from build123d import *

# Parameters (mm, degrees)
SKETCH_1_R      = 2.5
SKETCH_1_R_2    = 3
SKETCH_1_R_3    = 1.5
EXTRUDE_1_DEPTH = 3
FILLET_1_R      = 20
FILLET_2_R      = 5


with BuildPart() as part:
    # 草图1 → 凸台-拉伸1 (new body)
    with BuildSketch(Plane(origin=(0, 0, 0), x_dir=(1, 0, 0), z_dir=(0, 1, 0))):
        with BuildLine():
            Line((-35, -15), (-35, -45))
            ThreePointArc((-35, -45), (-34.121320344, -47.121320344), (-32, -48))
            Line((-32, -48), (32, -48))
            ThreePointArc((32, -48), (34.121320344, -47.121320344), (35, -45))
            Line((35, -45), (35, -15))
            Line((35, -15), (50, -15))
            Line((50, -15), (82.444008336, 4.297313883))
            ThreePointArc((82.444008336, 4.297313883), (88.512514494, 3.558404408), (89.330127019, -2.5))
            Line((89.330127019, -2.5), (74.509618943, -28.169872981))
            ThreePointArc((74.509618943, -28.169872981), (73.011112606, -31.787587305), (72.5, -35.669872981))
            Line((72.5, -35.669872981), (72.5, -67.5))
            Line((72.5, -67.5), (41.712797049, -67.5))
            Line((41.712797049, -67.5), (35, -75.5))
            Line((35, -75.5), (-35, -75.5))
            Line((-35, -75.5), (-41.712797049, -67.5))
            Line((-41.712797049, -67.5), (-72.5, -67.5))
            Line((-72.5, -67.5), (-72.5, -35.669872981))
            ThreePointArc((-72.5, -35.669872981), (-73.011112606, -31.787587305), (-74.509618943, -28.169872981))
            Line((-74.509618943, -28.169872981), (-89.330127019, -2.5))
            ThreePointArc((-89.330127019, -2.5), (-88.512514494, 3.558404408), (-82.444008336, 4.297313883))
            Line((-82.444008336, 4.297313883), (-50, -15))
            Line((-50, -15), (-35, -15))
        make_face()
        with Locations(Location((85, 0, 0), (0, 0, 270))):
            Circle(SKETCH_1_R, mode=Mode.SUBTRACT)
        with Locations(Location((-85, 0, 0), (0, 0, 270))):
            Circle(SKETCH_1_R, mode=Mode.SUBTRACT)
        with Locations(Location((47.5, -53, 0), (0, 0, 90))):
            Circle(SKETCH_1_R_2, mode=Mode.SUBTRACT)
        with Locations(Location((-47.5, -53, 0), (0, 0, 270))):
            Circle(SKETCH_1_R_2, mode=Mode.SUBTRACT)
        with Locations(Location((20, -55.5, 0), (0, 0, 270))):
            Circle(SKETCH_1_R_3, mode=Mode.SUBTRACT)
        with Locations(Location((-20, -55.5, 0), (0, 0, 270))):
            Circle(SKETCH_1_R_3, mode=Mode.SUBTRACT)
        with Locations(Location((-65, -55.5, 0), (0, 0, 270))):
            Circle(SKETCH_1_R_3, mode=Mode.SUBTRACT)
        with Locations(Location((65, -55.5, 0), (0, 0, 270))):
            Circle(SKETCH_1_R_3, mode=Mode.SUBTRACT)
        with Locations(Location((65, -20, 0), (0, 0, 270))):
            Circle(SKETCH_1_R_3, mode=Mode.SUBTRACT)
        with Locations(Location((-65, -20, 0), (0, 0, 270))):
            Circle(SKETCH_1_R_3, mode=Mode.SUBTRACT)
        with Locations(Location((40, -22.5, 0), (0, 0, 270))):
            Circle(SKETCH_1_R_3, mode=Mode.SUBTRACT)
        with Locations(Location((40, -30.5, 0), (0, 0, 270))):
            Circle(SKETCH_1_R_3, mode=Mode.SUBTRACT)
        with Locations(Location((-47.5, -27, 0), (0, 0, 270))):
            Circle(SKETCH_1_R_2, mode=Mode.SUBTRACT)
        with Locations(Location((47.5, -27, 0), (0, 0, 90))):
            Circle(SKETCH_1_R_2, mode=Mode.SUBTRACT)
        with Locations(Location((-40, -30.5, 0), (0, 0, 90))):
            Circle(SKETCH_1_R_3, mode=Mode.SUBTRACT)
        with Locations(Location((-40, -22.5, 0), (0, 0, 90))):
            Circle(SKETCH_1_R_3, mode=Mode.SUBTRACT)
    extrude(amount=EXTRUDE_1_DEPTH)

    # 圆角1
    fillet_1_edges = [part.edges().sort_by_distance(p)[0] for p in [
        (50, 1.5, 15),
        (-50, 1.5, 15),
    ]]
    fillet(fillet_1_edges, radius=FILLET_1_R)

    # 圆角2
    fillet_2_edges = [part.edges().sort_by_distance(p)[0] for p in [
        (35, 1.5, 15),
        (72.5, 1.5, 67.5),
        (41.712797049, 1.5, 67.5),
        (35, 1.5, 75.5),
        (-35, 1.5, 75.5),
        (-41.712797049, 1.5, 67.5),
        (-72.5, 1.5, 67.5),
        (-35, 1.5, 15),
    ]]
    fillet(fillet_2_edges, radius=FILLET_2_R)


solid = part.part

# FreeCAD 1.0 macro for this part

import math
import FreeCAD as App
import Part
import Sketcher
from FreeCAD import Vector
Q = App.Units.Quantity


def edges_at(feature, points):
    """Names of the edges that pass closest to the given points."""
    edges = feature.Shape.Edges
    near = lambda p: min(range(len(edges)), key=lambda i: edges[i].distToShape(Part.Vertex(*p))[0])
    return sorted({f"Edge{near(p) + 1}" for p in points})

doc = App.newDocument("Part")
params = doc.addObject("Spreadsheet::Sheet", "Params")
for row, (alias, value) in enumerate([
    ("sketch1_diameter", "3 mm"),
    ("sketch1_diameter2", "6 mm"),
    ("sketch1_diameter3", "5 mm"),
    ("sketch1_radius", "5 mm"),
    ("sketch1_radius2", "15 mm"),
    ("pad1_length", "3 mm"),
    ("fillet_radius", "20 mm"),
    ("fillet2_radius", "5 mm"),
], start=1):
    params.set(f"A{row}", alias)
    params.set(f"B{row}", "=" + value)
    params.setAlias(f"B{row}", alias)

body = doc.addObject("PartDesign::Body", "Body")

sketch1 = body.newObject("Sketcher::SketchObject", "Sketch")
sketch1.AttachmentSupport = (doc.getObject("XZ_Plane"), [""])
sketch1.MapMode = "FlatFace"
sketch1.addGeometry(Part.LineSegment(Vector(-35, 45, 0), Vector(-35, 15, 0)), False)
sketch1.addGeometry(Part.LineSegment(Vector(-35, 15, 0), Vector(-50, 15, 0)), False)
sketch1.addGeometry(Part.LineSegment(Vector(-50, 15, 0), Vector(-82.4, -4.3, 0)), False)
sketch1.addGeometry(Part.ArcOfCircle(Part.Circle(Vector(-85, 0, 0), Vector(0, 0, 1), 5), math.radians(150), math.radians(301)), False)
sketch1.addGeometry(Part.LineSegment(Vector(-89.3, 2.5, 0), Vector(-74.5, 28.2, 0)), False)
sketch1.addGeometry(Part.ArcOfCircle(Part.Circle(Vector(-87.5, 35.7, 0), Vector(0, 0, 1), 15), math.radians(-30), math.radians(0)), False)
sketch1.addGeometry(Part.LineSegment(Vector(-72.5, 35.7, 0), Vector(-72.5, 67.5, 0)), False)
sketch1.addGeometry(Part.LineSegment(Vector(-72.5, 67.5, 0), Vector(-41.7, 67.5, 0)), False)
sketch1.addGeometry(Part.LineSegment(Vector(-41.7, 67.5, 0), Vector(-35, 75.5, 0)), False)
sketch1.addGeometry(Part.LineSegment(Vector(-35, 75.5, 0), Vector(35, 75.5, 0)), False)
sketch1.addGeometry(Part.LineSegment(Vector(35, 75.5, 0), Vector(41.7, 67.5, 0)), False)
sketch1.addGeometry(Part.LineSegment(Vector(41.7, 67.5, 0), Vector(72.5, 67.5, 0)), False)
sketch1.addGeometry(Part.LineSegment(Vector(72.5, 67.5, 0), Vector(72.5, 35.7, 0)), False)
sketch1.addGeometry(Part.ArcOfCircle(Part.Circle(Vector(87.5, 35.7, 0), Vector(0, 0, 1), 15), math.radians(-180), math.radians(-150)), False)
sketch1.addGeometry(Part.LineSegment(Vector(74.5, 28.2, 0), Vector(89.3, 2.5, 0)), False)
sketch1.addGeometry(Part.ArcOfCircle(Part.Circle(Vector(85, 0, 0), Vector(0, 0, 1), 5), math.radians(-121), math.radians(30)), False)
sketch1.addGeometry(Part.LineSegment(Vector(82.4, -4.3, 0), Vector(50, 15, 0)), False)
sketch1.addGeometry(Part.LineSegment(Vector(50, 15, 0), Vector(35, 15, 0)), False)
sketch1.addGeometry(Part.LineSegment(Vector(35, 15, 0), Vector(35, 45, 0)), False)
sketch1.addGeometry(Part.ArcOfCircle(Part.Circle(Vector(32, 45, 0), Vector(0, 0, 1), 3), math.radians(0), math.radians(90)), False)
sketch1.addGeometry(Part.LineSegment(Vector(32, 48, 0), Vector(-32, 48, 0)), False)
sketch1.addGeometry(Part.ArcOfCircle(Part.Circle(Vector(-32, 45, 0), Vector(0, 0, 1), 3), math.radians(90), math.radians(180)), False)
sketch1.addGeometry(Part.Circle(Vector(65, 55.5, 0), Vector(0, 0, 1), 1.5), False)
sketch1.addGeometry(Part.Circle(Vector(47.5, 53, 0), Vector(0, 0, 1), 3), False)
sketch1.addGeometry(Part.Circle(Vector(20, 55.5, 0), Vector(0, 0, 1), 1.5), False)
sketch1.addGeometry(Part.Circle(Vector(40, 30.5, 0), Vector(0, 0, 1), 1.5), False)
sketch1.addGeometry(Part.Circle(Vector(-20, 55.5, 0), Vector(0, 0, 1), 1.5), False)
sketch1.addGeometry(Part.Circle(Vector(-65, 55.5, 0), Vector(0, 0, 1), 1.5), False)
sketch1.addGeometry(Part.Circle(Vector(-47.5, 53, 0), Vector(0, 0, 1), 3), False)
sketch1.addGeometry(Part.Circle(Vector(-40, 30.5, 0), Vector(0, 0, 1), 1.5), False)
sketch1.addGeometry(Part.Circle(Vector(47.5, 27, 0), Vector(0, 0, 1), 3), False)
sketch1.addGeometry(Part.Circle(Vector(65, 20, 0), Vector(0, 0, 1), 1.5), False)
sketch1.addGeometry(Part.Circle(Vector(40, 22.5, 0), Vector(0, 0, 1), 1.5), False)
sketch1.addGeometry(Part.Circle(Vector(85, 0, 0), Vector(0, 0, 1), 2.5), False)
sketch1.addGeometry(Part.Circle(Vector(-40, 22.5, 0), Vector(0, 0, 1), 1.5), False)
sketch1.addGeometry(Part.Circle(Vector(-47.5, 27, 0), Vector(0, 0, 1), 3), False)
sketch1.addGeometry(Part.Circle(Vector(-65, 20, 0), Vector(0, 0, 1), 1.5), False)
sketch1.addGeometry(Part.Circle(Vector(-85, 0, 0), Vector(0, 0, 1), 2.5), False)
sketch1.addConstraint(Sketcher.Constraint("Coincident", 0, 2, 1, 1))
sketch1.addConstraint(Sketcher.Constraint("Coincident", 1, 2, 2, 1))
sketch1.addConstraint(Sketcher.Constraint("Tangent", 2, 2, 3, 2))
sketch1.addConstraint(Sketcher.Constraint("Tangent", 3, 1, 4, 1))
sketch1.addConstraint(Sketcher.Constraint("Tangent", 4, 2, 5, 1))
sketch1.addConstraint(Sketcher.Constraint("Tangent", 5, 2, 6, 1))
sketch1.addConstraint(Sketcher.Constraint("Coincident", 6, 2, 7, 1))
sketch1.addConstraint(Sketcher.Constraint("Coincident", 7, 2, 8, 1))
sketch1.addConstraint(Sketcher.Constraint("Coincident", 8, 2, 9, 1))
sketch1.addConstraint(Sketcher.Constraint("Coincident", 9, 2, 10, 1))
sketch1.addConstraint(Sketcher.Constraint("Coincident", 10, 2, 11, 1))
sketch1.addConstraint(Sketcher.Constraint("Coincident", 11, 2, 12, 1))
sketch1.addConstraint(Sketcher.Constraint("Tangent", 12, 2, 13, 1))
sketch1.addConstraint(Sketcher.Constraint("Tangent", 13, 2, 14, 1))
sketch1.addConstraint(Sketcher.Constraint("Tangent", 14, 2, 15, 2))
sketch1.addConstraint(Sketcher.Constraint("Tangent", 15, 1, 16, 1))
sketch1.addConstraint(Sketcher.Constraint("Coincident", 16, 2, 17, 1))
sketch1.addConstraint(Sketcher.Constraint("Coincident", 17, 2, 18, 1))
sketch1.addConstraint(Sketcher.Constraint("Tangent", 18, 2, 19, 1))
sketch1.addConstraint(Sketcher.Constraint("Tangent", 19, 2, 20, 1))
sketch1.addConstraint(Sketcher.Constraint("Tangent", 20, 2, 21, 1))
sketch1.addConstraint(Sketcher.Constraint("Tangent", 21, 2, 0, 1))
sketch1.addConstraint(Sketcher.Constraint("Vertical", 0))
sketch1.addConstraint(Sketcher.Constraint("Horizontal", 1))
sketch1.addConstraint(Sketcher.Constraint("Vertical", 6))
sketch1.addConstraint(Sketcher.Constraint("Horizontal", 7))
sketch1.addConstraint(Sketcher.Constraint("Horizontal", 9))
sketch1.addConstraint(Sketcher.Constraint("Horizontal", 11))
sketch1.addConstraint(Sketcher.Constraint("Vertical", 12))
sketch1.addConstraint(Sketcher.Constraint("Horizontal", 17))
sketch1.addConstraint(Sketcher.Constraint("Vertical", 18))
sketch1.addConstraint(Sketcher.Constraint("Horizontal", 20))
sketch1.addConstraint(Sketcher.Constraint("Coincident", 33, 3, 15, 3))
sketch1.addConstraint(Sketcher.Constraint("Coincident", 37, 3, 3, 3))
sketch1.addConstraint(Sketcher.Constraint("Equal", 5, 13))
sketch1.addConstraint(Sketcher.Constraint("Equal", 3, 15))
sketch1.addConstraint(Sketcher.Constraint("Equal", 19, 21))
sketch1.addConstraint(Sketcher.Constraint("Equal", 21, 23))
sketch1.addConstraint(Sketcher.Constraint("Equal", 22, 24))
sketch1.addConstraint(Sketcher.Constraint("Equal", 24, 25))
sketch1.addConstraint(Sketcher.Constraint("Equal", 25, 26))
sketch1.addConstraint(Sketcher.Constraint("Equal", 26, 27))
sketch1.addConstraint(Sketcher.Constraint("Equal", 23, 28))
sketch1.addConstraint(Sketcher.Constraint("Equal", 27, 29))
sketch1.addConstraint(Sketcher.Constraint("Equal", 28, 30))
sketch1.addConstraint(Sketcher.Constraint("Equal", 29, 31))
sketch1.addConstraint(Sketcher.Constraint("Equal", 31, 32))
sketch1.addConstraint(Sketcher.Constraint("Equal", 32, 34))
sketch1.addConstraint(Sketcher.Constraint("Equal", 30, 35))
sketch1.addConstraint(Sketcher.Constraint("Equal", 34, 36))
sketch1.addConstraint(Sketcher.Constraint("Equal", 33, 37))
sketch1.addConstraint(Sketcher.Constraint("Symmetric", 3, 3, 15, 3, -1, 1))
sketch1.addConstraint(Sketcher.Constraint("Symmetric", 5, 3, 13, 3, -2))
sketch1.addConstraint(Sketcher.Constraint("Symmetric", 24, 3, 26, 3, -2))
sketch1.addConstraint(Sketcher.Constraint("Symmetric", 22, 3, 27, 3, -2))
sketch1.addConstraint(Sketcher.Constraint("Symmetric", 23, 3, 28, 3, -2))
sketch1.addConstraint(Sketcher.Constraint("Symmetric", 25, 3, 29, 3, -2))
sketch1.addConstraint(Sketcher.Constraint("Symmetric", 32, 3, 34, 3, -2))
sketch1.addConstraint(Sketcher.Constraint("Symmetric", 30, 3, 35, 3, -2))
sketch1.addConstraint(Sketcher.Constraint("Symmetric", 31, 3, 36, 3, -2))
sketch1.addConstraint(Sketcher.Constraint("Symmetric", 7, 2, 10, 2, -2))
sketch1.addConstraint(Sketcher.Constraint("Symmetric", 2, 2, 15, 1, -2))
sketch1.addConstraint(Sketcher.Constraint("Symmetric", 0, 2, 17, 2, -2))
sketch1.addConstraint(Sketcher.Constraint("Horizontal", 22, 3, 24, 3))
sketch1.addConstraint(Sketcher.Constraint("Vertical", 23, 3, 30, 3))
sketch1.addConstraint(Sketcher.Constraint("Vertical", 22, 3, 31, 3))
sketch1.addConstraint(Sketcher.Constraint("Vertical", 25, 3, 32, 3))
sketch1.addConstraint(Sketcher.Constraint("Vertical", 0, 2, 8, 2))
sketch1.addConstraint(Sketcher.Constraint("Vertical", 9, 2, 17, 2))
sketch1.addConstraint(Sketcher.Constraint("Diameter", 22, 3.0))
sketch1.addConstraint(Sketcher.Constraint("Diameter", 23, 6.0))
sketch1.addConstraint(Sketcher.Constraint("Diameter", 33, 5.0))
sketch1.addConstraint(Sketcher.Constraint("Radius", 3, 5.0))
sketch1.addConstraint(Sketcher.Constraint("Radius", 5, 15.0))
sketch1.addConstraint(Sketcher.Constraint("DistanceX", 1, 2, 1, 1, 15.0))
sketch1.addConstraint(Sketcher.Constraint("DistanceX", 9, 1, 9, 2, 70.0))
sketch1.addConstraint(Sketcher.Constraint("DistanceY", 0, 2, 0, 1, 30.0))
sketch1.addConstraint(Sketcher.Constraint("Angle", 4, Q("60 deg")))
sketch1.addConstraint(Sketcher.Constraint("Angle", 8, Q("50 deg")))
sketch1.addConstraint(Sketcher.Constraint("DistanceX", 3, 3, -1, 1, 85.0))
sketch1.addConstraint(Sketcher.Constraint("DistanceY", -1, 1, 19, 3, 45.0))
sketch1.addConstraint(Sketcher.Constraint("DistanceX", -1, 1, 22, 3, 65.0))
sketch1.addConstraint(Sketcher.Constraint("DistanceY", -1, 1, 23, 3, 53.0))
sketch1.addConstraint(Sketcher.Constraint("DistanceX", -1, 1, 24, 3, 20.0))
sketch1.addConstraint(Sketcher.Constraint("DistanceX", -1, 1, 25, 3, 40.0))
sketch1.addConstraint(Sketcher.Constraint("DistanceY", -1, 1, 30, 3, 27.0))
sketch1.addConstraint(Sketcher.Constraint("DistanceY", -1, 1, 31, 3, 20.0))
sketch1.addConstraint(Sketcher.Constraint("DistanceX", 5, 3, 13, 3, 175.0))
sketch1.addConstraint(Sketcher.Constraint("DistanceX", 23, 3, 13, 3, 40.0))
sketch1.addConstraint(Sketcher.Constraint("DistanceY", 25, 3, 24, 3, 25.0))
sketch1.addConstraint(Sketcher.Constraint("DistanceY", 32, 3, 25, 3, 8.0))
sketch1.addConstraint(Sketcher.Constraint("DistanceY", 27, 3, 6, 2, 12.0))
sketch1.addConstraint(Sketcher.Constraint("DistanceY", 7, 2, 8, 2, 8.0))
sketch1.addConstraint(Sketcher.Constraint("DistanceY", -1, 1, 22, 3, 55.5))
sketch1.setExpression("Constraints[69]", "Params.sketch1_diameter")
sketch1.setExpression("Constraints[70]", "Params.sketch1_diameter2")
sketch1.setExpression("Constraints[71]", "Params.sketch1_diameter3")
sketch1.setExpression("Constraints[72]", "Params.sketch1_radius")
sketch1.setExpression("Constraints[73]", "Params.sketch1_radius2")
pad1 = body.newObject("PartDesign::Pad", "Pad")
pad1.Profile = sketch1
pad1.setExpression("Length", "Params.pad1_length")
pad1.Reversed = True
doc.recompute()

fillet = body.newObject("PartDesign::Fillet", "Fillet")
fillet.Base = (pad1, edges_at(pad1, [(50, 1.5, 15), (-50, 1.5, 15)]))
fillet.setExpression("Radius", "Params.fillet_radius")
doc.recompute()

fillet2 = body.newObject("PartDesign::Fillet", "Fillet001")
fillet2.Base = (fillet, edges_at(fillet, [
    (35, 1.5, 15),
    (72.5, 1.5, 67.5),
    (41.713, 1.5, 67.5),
    (35, 1.5, 75.5),
    (-35, 1.5, 75.5),
    (-41.713, 1.5, 67.5),
    (-72.5, 1.5, 67.5),
    (-35, 1.5, 15),
]))
fillet2.setExpression("Radius", "Params.fillet2_radius")

doc.recompute()
